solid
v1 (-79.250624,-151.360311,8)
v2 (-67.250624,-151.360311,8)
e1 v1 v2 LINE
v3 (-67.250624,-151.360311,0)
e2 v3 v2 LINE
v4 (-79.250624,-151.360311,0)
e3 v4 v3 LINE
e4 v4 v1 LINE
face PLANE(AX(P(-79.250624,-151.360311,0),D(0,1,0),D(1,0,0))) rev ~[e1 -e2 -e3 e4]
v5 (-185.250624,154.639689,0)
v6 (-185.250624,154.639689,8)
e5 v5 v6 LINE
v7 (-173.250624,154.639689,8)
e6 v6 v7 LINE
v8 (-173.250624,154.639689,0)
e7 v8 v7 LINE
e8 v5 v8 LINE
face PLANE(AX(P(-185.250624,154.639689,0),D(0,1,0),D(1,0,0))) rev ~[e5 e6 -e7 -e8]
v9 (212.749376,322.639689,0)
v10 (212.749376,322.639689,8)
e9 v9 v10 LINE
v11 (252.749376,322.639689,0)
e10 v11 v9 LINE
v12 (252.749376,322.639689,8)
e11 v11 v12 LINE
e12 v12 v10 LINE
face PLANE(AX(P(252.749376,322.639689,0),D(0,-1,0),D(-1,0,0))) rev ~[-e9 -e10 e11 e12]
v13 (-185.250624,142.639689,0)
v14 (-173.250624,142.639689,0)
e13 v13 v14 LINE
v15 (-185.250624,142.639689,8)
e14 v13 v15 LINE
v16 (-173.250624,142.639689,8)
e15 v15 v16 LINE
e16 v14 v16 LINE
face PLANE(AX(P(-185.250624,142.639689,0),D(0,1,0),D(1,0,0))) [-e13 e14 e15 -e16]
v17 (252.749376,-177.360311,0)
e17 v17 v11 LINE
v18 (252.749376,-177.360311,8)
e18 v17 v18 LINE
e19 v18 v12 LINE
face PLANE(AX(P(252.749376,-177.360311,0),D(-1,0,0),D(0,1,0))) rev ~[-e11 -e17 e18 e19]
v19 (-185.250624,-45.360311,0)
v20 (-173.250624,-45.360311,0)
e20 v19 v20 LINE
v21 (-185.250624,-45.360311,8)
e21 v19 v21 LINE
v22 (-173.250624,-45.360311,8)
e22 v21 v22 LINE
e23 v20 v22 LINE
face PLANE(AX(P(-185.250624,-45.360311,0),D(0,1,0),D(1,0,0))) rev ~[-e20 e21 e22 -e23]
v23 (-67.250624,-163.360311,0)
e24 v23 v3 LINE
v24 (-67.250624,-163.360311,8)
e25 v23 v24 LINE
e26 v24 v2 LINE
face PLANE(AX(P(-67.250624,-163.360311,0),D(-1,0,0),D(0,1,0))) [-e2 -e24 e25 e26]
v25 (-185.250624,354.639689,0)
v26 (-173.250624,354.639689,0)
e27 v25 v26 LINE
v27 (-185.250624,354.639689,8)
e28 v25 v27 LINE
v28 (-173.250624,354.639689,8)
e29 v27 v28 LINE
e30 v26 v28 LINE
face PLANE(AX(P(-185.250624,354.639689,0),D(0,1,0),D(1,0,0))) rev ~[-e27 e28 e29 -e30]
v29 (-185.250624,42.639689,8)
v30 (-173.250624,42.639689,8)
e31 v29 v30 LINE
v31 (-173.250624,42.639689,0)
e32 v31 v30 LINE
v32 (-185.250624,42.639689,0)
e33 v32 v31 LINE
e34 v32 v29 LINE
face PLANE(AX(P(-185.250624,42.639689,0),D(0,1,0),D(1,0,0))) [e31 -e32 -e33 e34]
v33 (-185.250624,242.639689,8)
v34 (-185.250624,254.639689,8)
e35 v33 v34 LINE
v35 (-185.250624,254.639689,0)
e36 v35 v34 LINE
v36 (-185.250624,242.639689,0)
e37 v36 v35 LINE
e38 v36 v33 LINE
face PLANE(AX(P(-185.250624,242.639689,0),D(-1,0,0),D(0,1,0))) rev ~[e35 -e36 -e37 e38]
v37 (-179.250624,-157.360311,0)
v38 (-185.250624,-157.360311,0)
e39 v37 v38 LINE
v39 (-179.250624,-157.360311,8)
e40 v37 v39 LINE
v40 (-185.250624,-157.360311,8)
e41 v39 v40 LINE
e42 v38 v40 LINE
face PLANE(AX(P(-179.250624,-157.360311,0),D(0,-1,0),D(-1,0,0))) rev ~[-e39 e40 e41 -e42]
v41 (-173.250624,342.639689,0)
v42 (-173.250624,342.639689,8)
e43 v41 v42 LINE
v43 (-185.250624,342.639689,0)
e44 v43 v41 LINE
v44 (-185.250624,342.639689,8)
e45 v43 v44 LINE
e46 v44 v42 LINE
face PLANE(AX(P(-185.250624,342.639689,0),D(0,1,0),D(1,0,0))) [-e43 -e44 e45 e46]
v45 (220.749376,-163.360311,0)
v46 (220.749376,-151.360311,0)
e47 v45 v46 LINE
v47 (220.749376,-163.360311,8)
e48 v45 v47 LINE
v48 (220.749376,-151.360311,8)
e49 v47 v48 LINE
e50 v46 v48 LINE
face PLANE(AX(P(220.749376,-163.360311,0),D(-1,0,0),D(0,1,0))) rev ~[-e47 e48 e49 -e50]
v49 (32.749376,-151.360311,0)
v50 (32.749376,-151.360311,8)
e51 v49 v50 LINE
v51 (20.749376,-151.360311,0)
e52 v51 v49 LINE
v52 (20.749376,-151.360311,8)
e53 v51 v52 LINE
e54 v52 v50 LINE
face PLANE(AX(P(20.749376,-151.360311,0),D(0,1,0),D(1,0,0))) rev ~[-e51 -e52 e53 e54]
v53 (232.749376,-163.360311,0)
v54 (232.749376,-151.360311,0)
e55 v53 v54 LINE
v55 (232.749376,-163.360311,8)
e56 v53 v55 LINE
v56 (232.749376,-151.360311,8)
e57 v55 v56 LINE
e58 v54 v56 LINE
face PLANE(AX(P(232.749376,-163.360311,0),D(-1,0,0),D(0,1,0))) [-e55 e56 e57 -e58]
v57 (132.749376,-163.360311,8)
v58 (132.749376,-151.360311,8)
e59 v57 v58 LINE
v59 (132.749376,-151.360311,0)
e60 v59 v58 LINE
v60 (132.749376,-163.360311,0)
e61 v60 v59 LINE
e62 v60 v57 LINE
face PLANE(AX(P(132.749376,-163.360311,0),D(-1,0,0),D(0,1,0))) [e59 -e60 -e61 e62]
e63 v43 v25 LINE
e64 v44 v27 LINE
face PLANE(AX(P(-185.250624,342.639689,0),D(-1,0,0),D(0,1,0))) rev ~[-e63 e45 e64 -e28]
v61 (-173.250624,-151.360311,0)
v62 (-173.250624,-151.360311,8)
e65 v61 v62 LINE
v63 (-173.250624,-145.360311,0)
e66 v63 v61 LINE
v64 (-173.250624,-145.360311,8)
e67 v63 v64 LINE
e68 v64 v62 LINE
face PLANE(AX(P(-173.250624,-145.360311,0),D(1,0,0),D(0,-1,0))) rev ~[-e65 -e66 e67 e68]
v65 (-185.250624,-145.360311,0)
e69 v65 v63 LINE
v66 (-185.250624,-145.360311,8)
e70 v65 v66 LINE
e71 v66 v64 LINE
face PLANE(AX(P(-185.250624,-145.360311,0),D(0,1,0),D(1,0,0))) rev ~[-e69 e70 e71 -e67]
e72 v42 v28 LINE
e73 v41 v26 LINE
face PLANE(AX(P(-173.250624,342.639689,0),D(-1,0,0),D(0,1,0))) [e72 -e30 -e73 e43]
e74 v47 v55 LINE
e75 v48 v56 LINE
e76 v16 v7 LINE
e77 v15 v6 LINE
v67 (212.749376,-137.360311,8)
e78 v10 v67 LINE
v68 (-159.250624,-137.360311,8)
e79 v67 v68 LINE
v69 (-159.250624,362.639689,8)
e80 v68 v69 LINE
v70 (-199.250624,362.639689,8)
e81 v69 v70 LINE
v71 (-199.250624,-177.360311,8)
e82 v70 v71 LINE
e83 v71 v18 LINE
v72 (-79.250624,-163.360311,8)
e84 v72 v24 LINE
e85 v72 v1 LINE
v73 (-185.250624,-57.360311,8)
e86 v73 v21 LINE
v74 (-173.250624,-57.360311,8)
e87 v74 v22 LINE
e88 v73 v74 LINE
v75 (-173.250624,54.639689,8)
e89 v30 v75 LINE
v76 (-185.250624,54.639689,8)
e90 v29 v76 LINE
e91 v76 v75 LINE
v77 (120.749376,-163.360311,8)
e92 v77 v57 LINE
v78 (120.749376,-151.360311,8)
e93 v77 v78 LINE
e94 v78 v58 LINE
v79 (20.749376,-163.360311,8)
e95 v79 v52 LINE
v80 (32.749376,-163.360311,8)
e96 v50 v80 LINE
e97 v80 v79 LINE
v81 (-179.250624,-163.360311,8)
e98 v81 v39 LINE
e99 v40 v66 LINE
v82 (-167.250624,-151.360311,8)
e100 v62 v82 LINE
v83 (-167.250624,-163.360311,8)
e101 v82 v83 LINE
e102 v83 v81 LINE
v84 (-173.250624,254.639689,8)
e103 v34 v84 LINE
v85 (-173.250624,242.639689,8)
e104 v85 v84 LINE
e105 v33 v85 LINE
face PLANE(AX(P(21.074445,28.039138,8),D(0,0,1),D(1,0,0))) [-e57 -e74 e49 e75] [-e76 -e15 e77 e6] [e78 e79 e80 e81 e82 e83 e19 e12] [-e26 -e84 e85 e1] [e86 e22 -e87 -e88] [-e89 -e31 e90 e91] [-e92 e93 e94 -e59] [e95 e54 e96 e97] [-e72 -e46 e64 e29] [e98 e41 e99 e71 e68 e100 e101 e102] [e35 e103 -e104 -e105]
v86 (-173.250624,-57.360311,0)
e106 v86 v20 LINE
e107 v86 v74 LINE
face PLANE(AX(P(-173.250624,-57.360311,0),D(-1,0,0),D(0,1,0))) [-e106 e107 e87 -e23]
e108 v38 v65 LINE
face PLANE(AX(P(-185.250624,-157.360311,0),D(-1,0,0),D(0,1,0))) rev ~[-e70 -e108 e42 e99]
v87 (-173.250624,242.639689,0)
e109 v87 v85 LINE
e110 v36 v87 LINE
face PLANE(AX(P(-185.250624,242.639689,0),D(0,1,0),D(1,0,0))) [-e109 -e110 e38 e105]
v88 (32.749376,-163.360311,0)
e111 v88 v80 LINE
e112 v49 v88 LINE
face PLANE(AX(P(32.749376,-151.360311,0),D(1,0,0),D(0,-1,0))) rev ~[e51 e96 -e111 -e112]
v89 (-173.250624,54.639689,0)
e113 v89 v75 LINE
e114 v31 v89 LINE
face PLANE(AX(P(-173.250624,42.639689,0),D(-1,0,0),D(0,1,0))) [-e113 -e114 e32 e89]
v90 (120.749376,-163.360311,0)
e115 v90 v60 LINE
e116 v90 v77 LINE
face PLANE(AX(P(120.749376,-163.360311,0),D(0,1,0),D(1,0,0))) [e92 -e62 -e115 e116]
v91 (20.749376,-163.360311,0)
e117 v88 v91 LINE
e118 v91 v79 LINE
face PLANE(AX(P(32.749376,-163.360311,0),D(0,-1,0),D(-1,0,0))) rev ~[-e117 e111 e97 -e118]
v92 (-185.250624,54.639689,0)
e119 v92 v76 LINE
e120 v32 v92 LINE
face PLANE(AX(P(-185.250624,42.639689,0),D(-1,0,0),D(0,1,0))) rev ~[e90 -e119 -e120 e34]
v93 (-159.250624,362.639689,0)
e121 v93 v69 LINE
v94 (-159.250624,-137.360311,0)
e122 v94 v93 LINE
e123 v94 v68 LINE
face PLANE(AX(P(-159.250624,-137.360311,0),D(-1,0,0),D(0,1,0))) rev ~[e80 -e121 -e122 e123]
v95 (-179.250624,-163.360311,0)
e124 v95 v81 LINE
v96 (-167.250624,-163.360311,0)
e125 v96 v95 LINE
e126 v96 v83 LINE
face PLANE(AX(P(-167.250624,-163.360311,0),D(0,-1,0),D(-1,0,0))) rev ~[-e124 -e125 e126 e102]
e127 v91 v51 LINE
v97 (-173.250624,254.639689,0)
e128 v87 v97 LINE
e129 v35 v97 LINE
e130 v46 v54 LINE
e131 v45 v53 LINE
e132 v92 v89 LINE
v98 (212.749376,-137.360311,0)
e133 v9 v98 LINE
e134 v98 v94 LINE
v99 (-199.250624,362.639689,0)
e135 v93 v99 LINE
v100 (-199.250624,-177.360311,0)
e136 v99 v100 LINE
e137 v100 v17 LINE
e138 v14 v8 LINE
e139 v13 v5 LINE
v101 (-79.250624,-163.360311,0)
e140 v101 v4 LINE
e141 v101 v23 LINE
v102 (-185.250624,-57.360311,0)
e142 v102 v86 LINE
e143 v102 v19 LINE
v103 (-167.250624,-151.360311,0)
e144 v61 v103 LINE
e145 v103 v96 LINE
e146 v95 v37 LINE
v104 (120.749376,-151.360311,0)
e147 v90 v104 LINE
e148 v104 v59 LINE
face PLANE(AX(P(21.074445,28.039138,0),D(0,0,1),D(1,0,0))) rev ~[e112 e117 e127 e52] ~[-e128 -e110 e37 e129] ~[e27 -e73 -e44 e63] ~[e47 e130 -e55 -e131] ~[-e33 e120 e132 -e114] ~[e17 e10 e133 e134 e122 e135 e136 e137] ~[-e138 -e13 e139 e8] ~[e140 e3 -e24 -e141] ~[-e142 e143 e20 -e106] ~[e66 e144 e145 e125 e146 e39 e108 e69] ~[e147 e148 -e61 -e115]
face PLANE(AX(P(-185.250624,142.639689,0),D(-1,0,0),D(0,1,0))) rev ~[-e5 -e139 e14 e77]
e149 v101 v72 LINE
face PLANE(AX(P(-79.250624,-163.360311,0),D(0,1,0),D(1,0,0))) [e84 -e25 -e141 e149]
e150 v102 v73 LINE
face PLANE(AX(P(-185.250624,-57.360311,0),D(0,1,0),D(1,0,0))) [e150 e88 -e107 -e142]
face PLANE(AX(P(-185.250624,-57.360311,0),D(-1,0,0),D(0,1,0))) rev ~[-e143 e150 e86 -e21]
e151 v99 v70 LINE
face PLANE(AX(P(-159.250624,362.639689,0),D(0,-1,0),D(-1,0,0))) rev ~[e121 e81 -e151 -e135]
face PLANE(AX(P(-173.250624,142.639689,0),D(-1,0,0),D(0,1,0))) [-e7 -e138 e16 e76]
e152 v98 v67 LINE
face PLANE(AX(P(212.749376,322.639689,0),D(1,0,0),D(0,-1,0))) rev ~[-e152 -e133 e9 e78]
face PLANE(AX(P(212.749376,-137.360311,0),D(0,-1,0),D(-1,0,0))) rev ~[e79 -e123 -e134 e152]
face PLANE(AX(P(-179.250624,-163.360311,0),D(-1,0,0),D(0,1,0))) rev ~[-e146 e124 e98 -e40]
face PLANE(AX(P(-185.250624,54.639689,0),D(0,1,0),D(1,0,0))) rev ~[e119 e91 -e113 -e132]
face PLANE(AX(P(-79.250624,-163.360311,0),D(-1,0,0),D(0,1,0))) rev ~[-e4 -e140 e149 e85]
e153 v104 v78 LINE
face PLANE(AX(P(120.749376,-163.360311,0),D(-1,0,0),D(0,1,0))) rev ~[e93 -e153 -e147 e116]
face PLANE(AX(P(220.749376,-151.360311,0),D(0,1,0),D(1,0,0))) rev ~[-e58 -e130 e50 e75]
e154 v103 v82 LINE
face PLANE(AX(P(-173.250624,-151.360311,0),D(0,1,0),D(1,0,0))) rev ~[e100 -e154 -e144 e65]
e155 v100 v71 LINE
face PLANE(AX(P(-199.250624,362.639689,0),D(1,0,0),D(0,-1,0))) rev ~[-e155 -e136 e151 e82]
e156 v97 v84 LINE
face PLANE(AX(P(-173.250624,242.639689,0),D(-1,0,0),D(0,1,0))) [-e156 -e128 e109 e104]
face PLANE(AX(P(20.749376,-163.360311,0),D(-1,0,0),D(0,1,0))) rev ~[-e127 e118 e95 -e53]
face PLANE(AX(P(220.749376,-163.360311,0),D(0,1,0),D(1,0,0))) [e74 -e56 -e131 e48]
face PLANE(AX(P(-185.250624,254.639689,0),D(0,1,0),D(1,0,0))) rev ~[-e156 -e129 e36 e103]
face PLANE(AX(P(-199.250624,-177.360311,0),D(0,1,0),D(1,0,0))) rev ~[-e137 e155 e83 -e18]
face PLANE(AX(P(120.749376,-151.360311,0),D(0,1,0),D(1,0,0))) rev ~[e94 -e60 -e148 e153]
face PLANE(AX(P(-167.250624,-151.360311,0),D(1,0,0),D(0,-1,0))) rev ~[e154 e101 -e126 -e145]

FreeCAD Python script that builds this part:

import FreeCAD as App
import Part
import Sketcher

V = App.Vector


def add_polygon(sketch, points):
    """Adds a closed chain of lines whose ends are joined by coincident constraints."""
    first, n = sketch.GeometryCount, len(points)
    for a, b in zip(points, points[1:] + points[:1]):
        sketch.addGeometry(Part.LineSegment(App.Vector(*a, 0), App.Vector(*b, 0)), False)
    for i in range(n):
        sketch.addConstraint(Sketcher.Constraint("Coincident", first + i, 2, first + (i + 1) % n, 1))

doc = App.newDocument("Part")
body = doc.addObject("PartDesign::Body", "Body")

# Sketch on XY plane
sketch1 = body.newObject("Sketcher::SketchObject", "Sketch")
sketch1.AttachmentSupport = (doc.getObject("XY_Plane"), [""])
sketch1.MapMode = "FlatFace"
add_polygon(sketch1, [(-199.250624, -177.360311), (252.749376, -177.360311), (252.749376, 322.639689), (212.749376, 322.639689), (212.749376, -137.360311), (-159.250624, -137.360311), (-159.250624, 362.639689), (-199.250624, 362.639689)])  # lines 0-7
add_polygon(sketch1, [(-167.250624, -163.360311), (-179.250624, -163.360311), (-179.250624, -157.360311), (-185.250624, -157.360311), (-185.250624, -145.360311), (-173.250624, -145.360311), (-173.250624, -151.360311), (-167.250624, -151.360311)])  # lines 8-15
add_polygon(sketch1, [(-173.250624, -57.360311), (-185.250624, -57.360311), (-185.250624, -45.360311), (-173.250624, -45.360311)])  # lines 16-19
add_polygon(sketch1, [(-67.250624, -163.360311), (-79.250624, -163.360311), (-79.250624, -151.360311), (-67.250624, -151.360311)])  # lines 20-23
add_polygon(sketch1, [(-173.250624, 42.639689), (-185.250624, 42.639689), (-185.250624, 54.639689), (-173.250624, 54.639689)])  # lines 24-27
add_polygon(sketch1, [(20.749376, -163.360311), (20.749376, -151.360311), (32.749376, -151.360311), (32.749376, -163.360311)])  # lines 28-31
add_polygon(sketch1, [(132.749376, -163.360311), (120.749376, -163.360311), (120.749376, -151.360311), (132.749376, -151.360311)])  # lines 32-35
add_polygon(sketch1, [(232.749376, -163.360311), (220.749376, -163.360311), (220.749376, -151.360311), (232.749376, -151.360311)])  # lines 36-39
add_polygon(sketch1, [(-173.250624, 142.639689), (-185.250624, 142.639689), (-185.250624, 154.639689), (-173.250624, 154.639689)])  # lines 40-43
add_polygon(sketch1, [(-173.250624, 242.639689), (-185.250624, 242.639689), (-185.250624, 254.639689), (-173.250624, 254.639689)])  # lines 44-47
add_polygon(sketch1, [(-173.250624, 342.639689), (-185.250624, 342.639689), (-185.250624, 354.639689), (-173.250624, 354.639689)])  # lines 48-51
sketch1.addConstraint([
    Sketcher.Constraint("Horizontal", 0),
    Sketcher.Constraint("Vertical", 1),
    Sketcher.Constraint("Horizontal", 2),
    Sketcher.Constraint("Vertical", 3),
    Sketcher.Constraint("Horizontal", 4),
    Sketcher.Constraint("Vertical", 5),
    Sketcher.Constraint("Horizontal", 6),
    Sketcher.Constraint("Vertical", 7),
    Sketcher.Constraint("Horizontal", 8),
    Sketcher.Constraint("Vertical", 9),
    Sketcher.Constraint("Horizontal", 10),
    Sketcher.Constraint("Vertical", 11),
    Sketcher.Constraint("Horizontal", 12),
    Sketcher.Constraint("Vertical", 13),
    Sketcher.Constraint("Horizontal", 14),
    Sketcher.Constraint("Vertical", 15),
    Sketcher.Constraint("Horizontal", 16),
    Sketcher.Constraint("Vertical", 17),
    Sketcher.Constraint("Horizontal", 18),
    Sketcher.Constraint("Vertical", 19),
    Sketcher.Constraint("Horizontal", 20),
    Sketcher.Constraint("Vertical", 21),
    Sketcher.Constraint("Horizontal", 22),
    Sketcher.Constraint("Vertical", 23),
    Sketcher.Constraint("Horizontal", 24),
    Sketcher.Constraint("Vertical", 25),
    Sketcher.Constraint("Horizontal", 26),
    Sketcher.Constraint("Vertical", 27),
    Sketcher.Constraint("Vertical", 28),
    Sketcher.Constraint("Horizontal", 29),
    Sketcher.Constraint("Vertical", 30),
    Sketcher.Constraint("Horizontal", 31),
    Sketcher.Constraint("Horizontal", 32),
    Sketcher.Constraint("Vertical", 33),
    Sketcher.Constraint("Horizontal", 34),
    Sketcher.Constraint("Vertical", 35),
    Sketcher.Constraint("Horizontal", 36),
    Sketcher.Constraint("Vertical", 37),
    Sketcher.Constraint("Horizontal", 38),
    Sketcher.Constraint("Vertical", 39),
    Sketcher.Constraint("Horizontal", 40),
    Sketcher.Constraint("Vertical", 41),
    Sketcher.Constraint("Horizontal", 42),
    Sketcher.Constraint("Vertical", 43),
    Sketcher.Constraint("Horizontal", 44),
    Sketcher.Constraint("Vertical", 45),
    Sketcher.Constraint("Horizontal", 46),
    Sketcher.Constraint("Vertical", 47),
    Sketcher.Constraint("Horizontal", 48),
    Sketcher.Constraint("Vertical", 49),
    Sketcher.Constraint("Horizontal", 50),
    Sketcher.Constraint("Vertical", 51),
    Sketcher.Constraint("Horizontal", 15, 2, 20, 2),
    Sketcher.Constraint("Horizontal", 14, 2, 21, 2),
    Sketcher.Constraint("Horizontal", 22, 2, 28, 2),
    Sketcher.Constraint("Horizontal", 23, 2, 30, 2),
    Sketcher.Constraint("Horizontal", 31, 2, 32, 2),
    Sketcher.Constraint("Horizontal", 29, 2, 33, 2),
    Sketcher.Constraint("Horizontal", 35, 2, 36, 2),
    Sketcher.Constraint("Horizontal", 34, 2, 37, 2),
    Sketcher.Constraint("Vertical", 11, 2, 16, 2),
    Sketcher.Constraint("Vertical", 13, 2, 18, 2),
    Sketcher.Constraint("Vertical", 17, 2, 24, 2),
    Sketcher.Constraint("Vertical", 19, 2, 26, 2),
    Sketcher.Constraint("Vertical", 25, 2, 40, 2),
    Sketcher.Constraint("Vertical", 27, 2, 42, 2),
    Sketcher.Constraint("Vertical", 41, 2, 44, 2),
    Sketcher.Constraint("Vertical", 43, 2, 46, 2),
    Sketcher.Constraint("Vertical", 45, 2, 48, 2),
    Sketcher.Constraint("Vertical", 47, 2, 50, 2),
    Sketcher.Constraint("Equal", 2, 6),
    Sketcher.Constraint("Equal", 8, 12),
    Sketcher.Constraint("Equal", 18, 20),
    Sketcher.Constraint("Equal", 26, 29),
    Sketcher.Constraint("Equal", 31, 32),
    Sketcher.Constraint("Equal", 34, 36),
    Sketcher.Constraint("Equal", 1, 5),
    Sketcher.Constraint("Equal", 14, 9),
    Sketcher.Constraint("Equal", 50, 11),
    Sketcher.Constraint("Equal", 9, 13),
    Sketcher.Constraint("Equal", 15, 17),
    Sketcher.Constraint("Equal", 23, 25),
    Sketcher.Constraint("Equal", 39, 41),
    Sketcher.Constraint("Equal", 43, 45),
    Sketcher.Constraint("Equal", 47, 49),
    Sketcher.Constraint("DistanceX", 0, 1, 0, 2, 452.0),
    Sketcher.Constraint("DistanceX", 2, 2, 2, 1, 40.0),
    Sketcher.Constraint("DistanceX", 8, 2, 8, 1, 12.0),
    Sketcher.Constraint("DistanceX", 10, 2, 10, 1, 6.0),
    Sketcher.Constraint("DistanceY", 1, 1, 1, 2, 500.0),
    Sketcher.Constraint("DistanceY", 3, 2, 3, 1, 460.0),
    Sketcher.Constraint("DistanceX", 7, 2, 8, 2, 20.0),
    Sketcher.Constraint("DistanceY", 7, 2, 8, 2, 14.0),
    Sketcher.Constraint("DistanceY", 4, 2, 16, 2, 80.0),
    Sketcher.Constraint("DistanceX", 4, 2, 20, 2, 80.0),
    Sketcher.Constraint("DistanceY", 17, 2, 24, 2, 88.0),
    Sketcher.Constraint("DistanceX", 22, 2, 28, 2, 88.0),
    Sketcher.Constraint("DistanceX", 30, 2, 32, 2, 88.0),
    Sketcher.Constraint("DistanceX", 3, 2, 36, 2, 8.0),
    Sketcher.Constraint("DistanceY", 25, 2, 40, 2, 88.0),
    Sketcher.Constraint("DistanceY", 41, 2, 44, 2, 88.0),
    Sketcher.Constraint("DistanceY", 48, 2, 6, 2, 20.0),
    Sketcher.Constraint("DistanceY", 0, 2, -1, 1, 177.360311),
    Sketcher.Constraint("DistanceX", -1, 1, 0, 2, 252.749376),
])
pad1 = body.newObject("PartDesign::Pad", "Pad")
pad1.Profile = sketch1
pad1.Length = 8

doc.recompute()
